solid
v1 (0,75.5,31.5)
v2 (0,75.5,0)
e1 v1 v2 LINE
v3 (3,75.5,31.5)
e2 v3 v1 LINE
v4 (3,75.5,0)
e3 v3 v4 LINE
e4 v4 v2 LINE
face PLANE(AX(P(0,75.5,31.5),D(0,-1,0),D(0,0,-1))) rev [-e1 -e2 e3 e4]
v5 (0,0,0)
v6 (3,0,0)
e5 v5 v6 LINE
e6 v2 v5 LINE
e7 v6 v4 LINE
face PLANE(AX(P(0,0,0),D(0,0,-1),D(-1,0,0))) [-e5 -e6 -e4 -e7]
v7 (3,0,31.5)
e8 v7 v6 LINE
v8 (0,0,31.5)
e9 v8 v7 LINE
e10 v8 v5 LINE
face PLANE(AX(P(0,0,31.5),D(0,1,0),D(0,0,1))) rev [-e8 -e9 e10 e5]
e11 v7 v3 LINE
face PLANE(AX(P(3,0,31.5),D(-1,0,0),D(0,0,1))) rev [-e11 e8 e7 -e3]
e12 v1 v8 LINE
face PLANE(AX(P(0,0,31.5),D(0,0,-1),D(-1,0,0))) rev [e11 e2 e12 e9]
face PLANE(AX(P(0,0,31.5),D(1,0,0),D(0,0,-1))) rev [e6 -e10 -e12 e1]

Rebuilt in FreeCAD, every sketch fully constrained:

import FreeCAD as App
import Part
import Sketcher


def add_polygon(sketch, points):
    """Adds a closed chain of lines whose ends are joined by coincident constraints."""
    first, n = sketch.GeometryCount, len(points)
    for a, b in zip(points, points[1:] + points[:1]):
        sketch.addGeometry(Part.LineSegment(App.Vector(*a, 0), App.Vector(*b, 0)), False)
    for i in range(n):
        sketch.addConstraint(Sketcher.Constraint("Coincident", first + i, 2, first + (i + 1) % n, 1))

doc = App.newDocument("Part")
body = doc.addObject("PartDesign::Body", "Body")

# Sketch on XY plane
sketch1 = doc.addObject("Sketcher::SketchObject", "Sketch")
body.addObject(sketch1)
sketch1.AttachmentSupport = (doc.XY_Plane, [""])
sketch1.MapMode = "FlatFace"
add_polygon(sketch1, [(0, 74), (0, 0), (3, 0), (3, 74)])  # lines 0-3
sketch1.addConstraint(Sketcher.Constraint("Vertical", 0))
sketch1.addConstraint(Sketcher.Constraint("Horizontal", 1))
sketch1.addConstraint(Sketcher.Constraint("Vertical", 2))
sketch1.addConstraint(Sketcher.Constraint("Horizontal", 3))
sketch1.addConstraint(Sketcher.Constraint("Coincident", 0, 2, -1, 1))
sketch1.addConstraint(Sketcher.Constraint("DistanceX", 1, 1, 1, 2, 3.0))
sketch1.addConstraint(Sketcher.Constraint("DistanceY", 0, 2, 0, 1, 74.0))
pad1 = doc.addObject("PartDesign::Pad", "Pad")
body.addObject(pad1)
pad1.Profile = sketch1
pad1.Length = 31.5

# Sketch on XY plane
sketch2 = doc.addObject("Sketcher::SketchObject", "Sketch001")
body.addObject(sketch2)
sketch2.AttachmentSupport = (doc.XY_Plane, [""])
sketch2.MapMode = "FlatFace"
add_polygon(sketch2, [(0, 75.5), (0, 74), (3, 74), (3, 75.5)])  # lines 0-3
sketch2.addConstraint(Sketcher.Constraint("Vertical", 0))
sketch2.addConstraint(Sketcher.Constraint("Horizontal", 1))
sketch2.addConstraint(Sketcher.Constraint("Vertical", 2))
sketch2.addConstraint(Sketcher.Constraint("Horizontal", 3))
sketch2.addConstraint(Sketcher.Constraint("PointOnObject", 0, 2, -2))
sketch2.addConstraint(Sketcher.Constraint("DistanceX", 1, 1, 1, 2, 3.0))
sketch2.addConstraint(Sketcher.Constraint("DistanceY", 0, 2, 0, 1, 1.5))
sketch2.addConstraint(Sketcher.Constraint("DistanceY", -1, 1, 0, 2, 74.0))
pad2 = doc.addObject("PartDesign::Pad", "Pad001")
body.addObject(pad2)
pad2.Profile = sketch2
pad2.Length = 31.5

doc.recompute()
